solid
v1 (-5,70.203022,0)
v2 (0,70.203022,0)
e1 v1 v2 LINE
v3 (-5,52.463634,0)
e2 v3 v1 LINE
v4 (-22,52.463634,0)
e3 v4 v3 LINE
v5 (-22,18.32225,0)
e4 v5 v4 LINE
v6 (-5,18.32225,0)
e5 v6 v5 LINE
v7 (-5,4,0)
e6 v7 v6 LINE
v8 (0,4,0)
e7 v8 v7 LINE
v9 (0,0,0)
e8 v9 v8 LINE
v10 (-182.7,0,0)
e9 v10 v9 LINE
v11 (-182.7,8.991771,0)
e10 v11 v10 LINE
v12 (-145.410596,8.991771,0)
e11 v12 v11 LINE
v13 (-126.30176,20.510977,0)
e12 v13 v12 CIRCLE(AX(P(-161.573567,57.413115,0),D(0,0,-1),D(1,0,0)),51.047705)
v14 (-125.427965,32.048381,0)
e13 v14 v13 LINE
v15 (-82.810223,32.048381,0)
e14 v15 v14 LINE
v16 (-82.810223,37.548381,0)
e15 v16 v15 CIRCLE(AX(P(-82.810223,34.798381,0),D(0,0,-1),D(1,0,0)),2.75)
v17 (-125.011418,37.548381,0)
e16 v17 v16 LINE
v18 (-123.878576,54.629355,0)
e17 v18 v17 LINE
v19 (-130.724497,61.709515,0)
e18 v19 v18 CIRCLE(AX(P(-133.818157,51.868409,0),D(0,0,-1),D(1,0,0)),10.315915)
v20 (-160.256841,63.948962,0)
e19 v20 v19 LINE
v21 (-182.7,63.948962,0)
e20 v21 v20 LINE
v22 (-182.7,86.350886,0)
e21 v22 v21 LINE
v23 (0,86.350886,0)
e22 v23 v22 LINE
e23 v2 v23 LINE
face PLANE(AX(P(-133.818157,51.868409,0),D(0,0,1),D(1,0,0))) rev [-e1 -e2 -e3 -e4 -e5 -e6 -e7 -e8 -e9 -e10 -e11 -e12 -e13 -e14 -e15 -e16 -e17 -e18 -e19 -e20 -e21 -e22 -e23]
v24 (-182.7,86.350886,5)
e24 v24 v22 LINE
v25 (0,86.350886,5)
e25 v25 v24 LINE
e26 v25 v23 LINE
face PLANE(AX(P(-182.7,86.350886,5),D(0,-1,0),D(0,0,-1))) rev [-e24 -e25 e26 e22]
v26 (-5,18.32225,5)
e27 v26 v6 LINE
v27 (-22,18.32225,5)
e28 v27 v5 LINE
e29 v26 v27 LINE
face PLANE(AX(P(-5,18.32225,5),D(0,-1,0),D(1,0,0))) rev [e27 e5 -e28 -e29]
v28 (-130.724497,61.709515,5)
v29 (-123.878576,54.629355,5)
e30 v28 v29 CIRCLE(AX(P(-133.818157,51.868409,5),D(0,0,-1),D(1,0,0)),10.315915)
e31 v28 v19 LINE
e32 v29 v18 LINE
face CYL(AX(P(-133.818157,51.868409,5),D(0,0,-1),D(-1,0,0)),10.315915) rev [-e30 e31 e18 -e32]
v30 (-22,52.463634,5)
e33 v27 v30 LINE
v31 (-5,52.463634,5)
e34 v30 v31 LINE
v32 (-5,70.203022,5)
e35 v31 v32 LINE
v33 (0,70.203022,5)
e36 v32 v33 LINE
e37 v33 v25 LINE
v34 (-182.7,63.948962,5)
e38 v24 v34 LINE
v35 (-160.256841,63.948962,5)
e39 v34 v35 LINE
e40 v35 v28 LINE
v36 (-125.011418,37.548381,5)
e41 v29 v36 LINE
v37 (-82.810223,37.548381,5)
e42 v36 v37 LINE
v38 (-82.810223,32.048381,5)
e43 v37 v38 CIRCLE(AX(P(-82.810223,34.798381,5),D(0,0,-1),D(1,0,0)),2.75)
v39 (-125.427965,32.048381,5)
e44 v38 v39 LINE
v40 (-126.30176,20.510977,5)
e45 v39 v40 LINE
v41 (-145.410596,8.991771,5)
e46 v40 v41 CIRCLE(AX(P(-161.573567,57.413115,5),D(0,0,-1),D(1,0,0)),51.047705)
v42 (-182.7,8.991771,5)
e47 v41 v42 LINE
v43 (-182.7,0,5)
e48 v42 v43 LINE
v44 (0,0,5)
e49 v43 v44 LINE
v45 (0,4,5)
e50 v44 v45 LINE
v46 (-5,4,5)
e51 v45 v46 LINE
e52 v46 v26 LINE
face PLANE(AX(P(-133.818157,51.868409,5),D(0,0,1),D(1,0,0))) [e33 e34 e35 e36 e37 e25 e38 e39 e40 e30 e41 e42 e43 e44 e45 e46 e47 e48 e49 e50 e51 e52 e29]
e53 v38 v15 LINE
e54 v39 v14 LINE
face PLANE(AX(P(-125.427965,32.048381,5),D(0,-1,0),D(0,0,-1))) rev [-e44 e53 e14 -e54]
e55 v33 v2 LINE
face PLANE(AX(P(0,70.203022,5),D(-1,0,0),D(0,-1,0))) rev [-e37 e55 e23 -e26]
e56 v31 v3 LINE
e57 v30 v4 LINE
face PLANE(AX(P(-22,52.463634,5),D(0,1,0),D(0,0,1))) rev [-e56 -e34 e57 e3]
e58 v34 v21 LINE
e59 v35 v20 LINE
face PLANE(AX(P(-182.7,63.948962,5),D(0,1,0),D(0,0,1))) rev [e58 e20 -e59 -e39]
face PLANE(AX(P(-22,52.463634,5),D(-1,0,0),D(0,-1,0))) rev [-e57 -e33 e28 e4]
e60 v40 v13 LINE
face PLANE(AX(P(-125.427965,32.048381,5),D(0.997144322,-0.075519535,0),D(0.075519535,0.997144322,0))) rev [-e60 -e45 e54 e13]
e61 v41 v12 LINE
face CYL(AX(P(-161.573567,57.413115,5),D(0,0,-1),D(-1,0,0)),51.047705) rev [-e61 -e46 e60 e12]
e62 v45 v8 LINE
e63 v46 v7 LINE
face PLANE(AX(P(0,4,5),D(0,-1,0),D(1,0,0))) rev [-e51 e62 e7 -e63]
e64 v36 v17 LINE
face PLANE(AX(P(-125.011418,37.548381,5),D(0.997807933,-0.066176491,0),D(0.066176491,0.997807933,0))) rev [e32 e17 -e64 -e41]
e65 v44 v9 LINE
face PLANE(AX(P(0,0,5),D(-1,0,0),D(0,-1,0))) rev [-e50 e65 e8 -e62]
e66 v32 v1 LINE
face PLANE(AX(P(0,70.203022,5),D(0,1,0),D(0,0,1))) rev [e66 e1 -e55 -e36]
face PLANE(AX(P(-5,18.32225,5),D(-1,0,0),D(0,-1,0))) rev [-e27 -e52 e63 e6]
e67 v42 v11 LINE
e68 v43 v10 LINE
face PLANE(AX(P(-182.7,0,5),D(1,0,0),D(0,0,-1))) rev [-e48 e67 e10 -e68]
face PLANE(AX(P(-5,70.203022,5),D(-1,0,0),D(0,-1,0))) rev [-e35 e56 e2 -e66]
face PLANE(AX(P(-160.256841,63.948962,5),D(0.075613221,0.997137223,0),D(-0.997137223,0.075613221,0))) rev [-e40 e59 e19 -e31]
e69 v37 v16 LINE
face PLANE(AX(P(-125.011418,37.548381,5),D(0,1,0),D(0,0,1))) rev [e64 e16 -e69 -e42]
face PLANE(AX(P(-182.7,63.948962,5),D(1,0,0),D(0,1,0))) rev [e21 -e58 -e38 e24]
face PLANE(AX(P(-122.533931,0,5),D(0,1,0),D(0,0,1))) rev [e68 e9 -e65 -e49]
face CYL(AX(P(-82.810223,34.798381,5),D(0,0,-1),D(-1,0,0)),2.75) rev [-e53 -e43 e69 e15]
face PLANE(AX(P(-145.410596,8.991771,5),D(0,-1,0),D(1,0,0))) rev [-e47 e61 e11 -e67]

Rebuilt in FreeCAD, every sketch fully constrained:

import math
import FreeCAD as App
import Part
import Sketcher
from FreeCAD import Vector

doc = App.newDocument("Part")
params = doc.addObject("Spreadsheet::Sheet", "Params")
for row, (alias, value) in enumerate([
    ("sketch1_width", "5 mm"),
    ("sketch1_width2", "17 mm"),
    ("sketch1_height", "4 mm"),
    ("sketch1_radius", "2.75 mm"),
    ("sketch1_width3", "182.7 mm"),
    ("pad1_length", "5 mm"),
], start=1):
    params.set(f"A{row}", alias)
    params.set(f"B{row}", "=" + value)
    params.setAlias(f"B{row}", alias)

body = doc.addObject("PartDesign::Body", "Body")

sketch1 = doc.addObject("Sketcher::SketchObject", "Sketch")
body.addObject(sketch1)
sketch1.AttachmentSupport = (doc.XY_Plane, [""])
sketch1.MapMode = "FlatFace"
sketch1.addGeometry(Part.LineSegment(Vector(0, 0, 0), Vector(0, 4, 0)), False)
sketch1.addGeometry(Part.LineSegment(Vector(0, 4, 0), Vector(-5, 4, 0)), False)
sketch1.addGeometry(Part.LineSegment(Vector(-5, 4, 0), Vector(-5, 18.3, 0)), False)
sketch1.addGeometry(Part.LineSegment(Vector(-5, 18.3, 0), Vector(-22, 18.3, 0)), False)
sketch1.addGeometry(Part.LineSegment(Vector(-22, 18.3, 0), Vector(-22, 52.5, 0)), False)
sketch1.addGeometry(Part.LineSegment(Vector(-22, 52.5, 0), Vector(-5, 52.5, 0)), False)
sketch1.addGeometry(Part.LineSegment(Vector(-5, 52.5, 0), Vector(-5, 70.2, 0)), False)
sketch1.addGeometry(Part.LineSegment(Vector(-5, 70.2, 0), Vector(0, 70.2, 0)), False)
sketch1.addGeometry(Part.LineSegment(Vector(0, 70.2, 0), Vector(0, 86.4, 0)), False)
sketch1.addGeometry(Part.LineSegment(Vector(0, 86.4, 0), Vector(-182.7, 86.4, 0)), False)
sketch1.addGeometry(Part.LineSegment(Vector(-182.7, 86.4, 0), Vector(-182.7, 63.9, 0)), False)
sketch1.addGeometry(Part.LineSegment(Vector(-182.7, 63.9, 0), Vector(-160.3, 63.9, 0)), False)
sketch1.addGeometry(Part.LineSegment(Vector(-160.3, 63.9, 0), Vector(-130.7, 61.7, 0)), False)
sketch1.addGeometry(Part.ArcOfCircle(Part.Circle(Vector(-133.8, 51.9, 0), Vector(0, 0, 1), 10.3), math.radians(16), math.radians(73)), False)
sketch1.addGeometry(Part.LineSegment(Vector(-123.9, 54.6, 0), Vector(-125, 37.5, 0)), False)
sketch1.addGeometry(Part.LineSegment(Vector(-125, 37.5, 0), Vector(-82.8, 37.5, 0)), False)
sketch1.addGeometry(Part.ArcOfCircle(Part.Circle(Vector(-82.8, 34.8, 0), Vector(0, 0, 1), 2.8), math.radians(-90), math.radians(90)), False)
sketch1.addGeometry(Part.LineSegment(Vector(-82.8, 32, 0), Vector(-125.4, 32, 0)), False)
sketch1.addGeometry(Part.LineSegment(Vector(-125.4, 32, 0), Vector(-126.3, 20.5, 0)), False)
sketch1.addGeometry(Part.ArcOfCircle(Part.Circle(Vector(-161.6, 57.4, 0), Vector(0, 0, 1), 51), math.radians(-72), math.radians(-46)), False)
sketch1.addGeometry(Part.LineSegment(Vector(-145.4, 9, 0), Vector(-182.7, 9, 0)), False)
sketch1.addGeometry(Part.LineSegment(Vector(-182.7, 9, 0), Vector(-182.7, 0, 0)), False)
sketch1.addGeometry(Part.LineSegment(Vector(-182.7, 0, 0), Vector(0, 0, 0)), False)
sketch1.addConstraint(Sketcher.Constraint("Coincident", 0, 2, 1, 1))
sketch1.addConstraint(Sketcher.Constraint("Coincident", 1, 2, 2, 1))
sketch1.addConstraint(Sketcher.Constraint("Coincident", 2, 2, 3, 1))
sketch1.addConstraint(Sketcher.Constraint("Coincident", 3, 2, 4, 1))
sketch1.addConstraint(Sketcher.Constraint("Coincident", 4, 2, 5, 1))
sketch1.addConstraint(Sketcher.Constraint("Coincident", 5, 2, 6, 1))
sketch1.addConstraint(Sketcher.Constraint("Coincident", 6, 2, 7, 1))
sketch1.addConstraint(Sketcher.Constraint("Coincident", 7, 2, 8, 1))
sketch1.addConstraint(Sketcher.Constraint("Coincident", 8, 2, 9, 1))
sketch1.addConstraint(Sketcher.Constraint("Coincident", 9, 2, 10, 1))
sketch1.addConstraint(Sketcher.Constraint("Coincident", 10, 2, 11, 1))
sketch1.addConstraint(Sketcher.Constraint("Coincident", 11, 2, 12, 1))
sketch1.addConstraint(Sketcher.Constraint("Coincident", 12, 2, 13, 2))
sketch1.addConstraint(Sketcher.Constraint("Coincident", 13, 1, 14, 1))
sketch1.addConstraint(Sketcher.Constraint("Coincident", 14, 2, 15, 1))
sketch1.addConstraint(Sketcher.Constraint("Tangent", 15, 2, 16, 2))
sketch1.addConstraint(Sketcher.Constraint("Tangent", 16, 1, 17, 1))
sketch1.addConstraint(Sketcher.Constraint("Coincident", 17, 2, 18, 1))
sketch1.addConstraint(Sketcher.Constraint("Coincident", 18, 2, 19, 2))
sketch1.addConstraint(Sketcher.Constraint("Coincident", 19, 1, 20, 1))
sketch1.addConstraint(Sketcher.Constraint("Coincident", 20, 2, 21, 1))
sketch1.addConstraint(Sketcher.Constraint("Coincident", 21, 2, 22, 1))
sketch1.addConstraint(Sketcher.Constraint("Coincident", 22, 2, 0, 1))
sketch1.addConstraint(Sketcher.Constraint("Vertical", 0))
sketch1.addConstraint(Sketcher.Constraint("Horizontal", 1))
sketch1.addConstraint(Sketcher.Constraint("Vertical", 2))
sketch1.addConstraint(Sketcher.Constraint("Horizontal", 3))
sketch1.addConstraint(Sketcher.Constraint("Vertical", 4))
sketch1.addConstraint(Sketcher.Constraint("Horizontal", 5))
sketch1.addConstraint(Sketcher.Constraint("Vertical", 6))
sketch1.addConstraint(Sketcher.Constraint("Horizontal", 7))
sketch1.addConstraint(Sketcher.Constraint("Vertical", 8))
sketch1.addConstraint(Sketcher.Constraint("Horizontal", 9))
sketch1.addConstraint(Sketcher.Constraint("Vertical", 10))
sketch1.addConstraint(Sketcher.Constraint("Horizontal", 11))
sketch1.addConstraint(Sketcher.Constraint("Horizontal", 15))
sketch1.addConstraint(Sketcher.Constraint("Horizontal", 17))
sketch1.addConstraint(Sketcher.Constraint("Horizontal", 20))
sketch1.addConstraint(Sketcher.Constraint("Vertical", 21))
sketch1.addConstraint(Sketcher.Constraint("Horizontal", 22))
sketch1.addConstraint(Sketcher.Constraint("Coincident", 22, 2, -1, 1))
sketch1.addConstraint(Sketcher.Constraint("PointOnObject", 7, 2, -2))
sketch1.addConstraint(Sketcher.Constraint("Vertical", 2, 2, 5, 2))
sketch1.addConstraint(Sketcher.Constraint("Vertical", 10, 2, 20, 2))
sketch1.addConstraint(Sketcher.Constraint("DistanceX", 1, 2, 1, 1, 5.0))
sketch1.addConstraint(Sketcher.Constraint("DistanceX", 3, 2, 3, 1, 17.0))
sketch1.addConstraint(Sketcher.Constraint("DistanceY", 0, 1, 0, 2, 4.0))
sketch1.addConstraint(Sketcher.Constraint("Radius", 16, 2.75))
sketch1.addConstraint(Sketcher.Constraint("DistanceX", 9, 2, 9, 1, 182.7))
sketch1.addConstraint(Sketcher.Constraint("Radius", 13, 10.315915))
sketch1.addConstraint(Sketcher.Constraint("Radius", 19, 51.047705))
sketch1.addConstraint(Sketcher.Constraint("Distance", 14, 17.118498))
sketch1.addConstraint(Sketcher.Constraint("DistanceX", 11, 1, 11, 2, 22.443159))
sketch1.addConstraint(Sketcher.Constraint("DistanceY", 2, 1, 2, 2, 14.32225))
sketch1.addConstraint(Sketcher.Constraint("DistanceY", 6, 1, 6, 2, 17.739388))
sketch1.addConstraint(Sketcher.Constraint("DistanceY", 21, 2, 21, 1, 8.991771))
sketch1.addConstraint(Sketcher.Constraint("DistanceY", 19, 3, 12, 2, 4.2964))
sketch1.addConstraint(Sketcher.Constraint("Distance", 12, 29.617131))
sketch1.addConstraint(Sketcher.Constraint("DistanceX", 15, 1, 15, 2, 42.201195))
sketch1.addConstraint(Sketcher.Constraint("DistanceX", 17, 2, 17, 1, 42.617742))
sketch1.addConstraint(Sketcher.Constraint("DistanceX", 20, 2, 20, 1, 37.289404))
sketch1.addConstraint(Sketcher.Constraint("DistanceY", 4, 1, 4, 2, 34.141384))
sketch1.addConstraint(Sketcher.Constraint("DistanceY", 8, 1, 8, 2, 16.147864))
sketch1.addConstraint(Sketcher.Constraint("DistanceY", 10, 2, 10, 1, 22.401924))
sketch1.addConstraint(Sketcher.Constraint("DistanceY", -1, 1, 13, 3, 51.868409))
sketch1.addConstraint(Sketcher.Constraint("DistanceY", -1, 1, 16, 3, 34.798381))
sketch1.addConstraint(Sketcher.Constraint("DistanceX", 14, 2, -1, 1, 125.011418))
sketch1.addConstraint(Sketcher.Constraint("DistanceX", 18, 2, -1, 1, 126.30176))
sketch1.addConstraint(Sketcher.Constraint("DistanceX", 19, 3, 13, 3, 27.75541))
sketch1.setExpression("Constraints[44]", "Params.sketch1_width")
sketch1.setExpression("Constraints[45]", "Params.sketch1_width2")
sketch1.setExpression("Constraints[46]", "Params.sketch1_height")
sketch1.setExpression("Constraints[47]", "Params.sketch1_radius")
sketch1.setExpression("Constraints[48]", "Params.sketch1_width3")
pad1 = doc.addObject("PartDesign::Pad", "Pad")
body.addObject(pad1)
pad1.Profile = sketch1
pad1.setExpression("Length", "Params.pad1_length")

doc.recompute()
